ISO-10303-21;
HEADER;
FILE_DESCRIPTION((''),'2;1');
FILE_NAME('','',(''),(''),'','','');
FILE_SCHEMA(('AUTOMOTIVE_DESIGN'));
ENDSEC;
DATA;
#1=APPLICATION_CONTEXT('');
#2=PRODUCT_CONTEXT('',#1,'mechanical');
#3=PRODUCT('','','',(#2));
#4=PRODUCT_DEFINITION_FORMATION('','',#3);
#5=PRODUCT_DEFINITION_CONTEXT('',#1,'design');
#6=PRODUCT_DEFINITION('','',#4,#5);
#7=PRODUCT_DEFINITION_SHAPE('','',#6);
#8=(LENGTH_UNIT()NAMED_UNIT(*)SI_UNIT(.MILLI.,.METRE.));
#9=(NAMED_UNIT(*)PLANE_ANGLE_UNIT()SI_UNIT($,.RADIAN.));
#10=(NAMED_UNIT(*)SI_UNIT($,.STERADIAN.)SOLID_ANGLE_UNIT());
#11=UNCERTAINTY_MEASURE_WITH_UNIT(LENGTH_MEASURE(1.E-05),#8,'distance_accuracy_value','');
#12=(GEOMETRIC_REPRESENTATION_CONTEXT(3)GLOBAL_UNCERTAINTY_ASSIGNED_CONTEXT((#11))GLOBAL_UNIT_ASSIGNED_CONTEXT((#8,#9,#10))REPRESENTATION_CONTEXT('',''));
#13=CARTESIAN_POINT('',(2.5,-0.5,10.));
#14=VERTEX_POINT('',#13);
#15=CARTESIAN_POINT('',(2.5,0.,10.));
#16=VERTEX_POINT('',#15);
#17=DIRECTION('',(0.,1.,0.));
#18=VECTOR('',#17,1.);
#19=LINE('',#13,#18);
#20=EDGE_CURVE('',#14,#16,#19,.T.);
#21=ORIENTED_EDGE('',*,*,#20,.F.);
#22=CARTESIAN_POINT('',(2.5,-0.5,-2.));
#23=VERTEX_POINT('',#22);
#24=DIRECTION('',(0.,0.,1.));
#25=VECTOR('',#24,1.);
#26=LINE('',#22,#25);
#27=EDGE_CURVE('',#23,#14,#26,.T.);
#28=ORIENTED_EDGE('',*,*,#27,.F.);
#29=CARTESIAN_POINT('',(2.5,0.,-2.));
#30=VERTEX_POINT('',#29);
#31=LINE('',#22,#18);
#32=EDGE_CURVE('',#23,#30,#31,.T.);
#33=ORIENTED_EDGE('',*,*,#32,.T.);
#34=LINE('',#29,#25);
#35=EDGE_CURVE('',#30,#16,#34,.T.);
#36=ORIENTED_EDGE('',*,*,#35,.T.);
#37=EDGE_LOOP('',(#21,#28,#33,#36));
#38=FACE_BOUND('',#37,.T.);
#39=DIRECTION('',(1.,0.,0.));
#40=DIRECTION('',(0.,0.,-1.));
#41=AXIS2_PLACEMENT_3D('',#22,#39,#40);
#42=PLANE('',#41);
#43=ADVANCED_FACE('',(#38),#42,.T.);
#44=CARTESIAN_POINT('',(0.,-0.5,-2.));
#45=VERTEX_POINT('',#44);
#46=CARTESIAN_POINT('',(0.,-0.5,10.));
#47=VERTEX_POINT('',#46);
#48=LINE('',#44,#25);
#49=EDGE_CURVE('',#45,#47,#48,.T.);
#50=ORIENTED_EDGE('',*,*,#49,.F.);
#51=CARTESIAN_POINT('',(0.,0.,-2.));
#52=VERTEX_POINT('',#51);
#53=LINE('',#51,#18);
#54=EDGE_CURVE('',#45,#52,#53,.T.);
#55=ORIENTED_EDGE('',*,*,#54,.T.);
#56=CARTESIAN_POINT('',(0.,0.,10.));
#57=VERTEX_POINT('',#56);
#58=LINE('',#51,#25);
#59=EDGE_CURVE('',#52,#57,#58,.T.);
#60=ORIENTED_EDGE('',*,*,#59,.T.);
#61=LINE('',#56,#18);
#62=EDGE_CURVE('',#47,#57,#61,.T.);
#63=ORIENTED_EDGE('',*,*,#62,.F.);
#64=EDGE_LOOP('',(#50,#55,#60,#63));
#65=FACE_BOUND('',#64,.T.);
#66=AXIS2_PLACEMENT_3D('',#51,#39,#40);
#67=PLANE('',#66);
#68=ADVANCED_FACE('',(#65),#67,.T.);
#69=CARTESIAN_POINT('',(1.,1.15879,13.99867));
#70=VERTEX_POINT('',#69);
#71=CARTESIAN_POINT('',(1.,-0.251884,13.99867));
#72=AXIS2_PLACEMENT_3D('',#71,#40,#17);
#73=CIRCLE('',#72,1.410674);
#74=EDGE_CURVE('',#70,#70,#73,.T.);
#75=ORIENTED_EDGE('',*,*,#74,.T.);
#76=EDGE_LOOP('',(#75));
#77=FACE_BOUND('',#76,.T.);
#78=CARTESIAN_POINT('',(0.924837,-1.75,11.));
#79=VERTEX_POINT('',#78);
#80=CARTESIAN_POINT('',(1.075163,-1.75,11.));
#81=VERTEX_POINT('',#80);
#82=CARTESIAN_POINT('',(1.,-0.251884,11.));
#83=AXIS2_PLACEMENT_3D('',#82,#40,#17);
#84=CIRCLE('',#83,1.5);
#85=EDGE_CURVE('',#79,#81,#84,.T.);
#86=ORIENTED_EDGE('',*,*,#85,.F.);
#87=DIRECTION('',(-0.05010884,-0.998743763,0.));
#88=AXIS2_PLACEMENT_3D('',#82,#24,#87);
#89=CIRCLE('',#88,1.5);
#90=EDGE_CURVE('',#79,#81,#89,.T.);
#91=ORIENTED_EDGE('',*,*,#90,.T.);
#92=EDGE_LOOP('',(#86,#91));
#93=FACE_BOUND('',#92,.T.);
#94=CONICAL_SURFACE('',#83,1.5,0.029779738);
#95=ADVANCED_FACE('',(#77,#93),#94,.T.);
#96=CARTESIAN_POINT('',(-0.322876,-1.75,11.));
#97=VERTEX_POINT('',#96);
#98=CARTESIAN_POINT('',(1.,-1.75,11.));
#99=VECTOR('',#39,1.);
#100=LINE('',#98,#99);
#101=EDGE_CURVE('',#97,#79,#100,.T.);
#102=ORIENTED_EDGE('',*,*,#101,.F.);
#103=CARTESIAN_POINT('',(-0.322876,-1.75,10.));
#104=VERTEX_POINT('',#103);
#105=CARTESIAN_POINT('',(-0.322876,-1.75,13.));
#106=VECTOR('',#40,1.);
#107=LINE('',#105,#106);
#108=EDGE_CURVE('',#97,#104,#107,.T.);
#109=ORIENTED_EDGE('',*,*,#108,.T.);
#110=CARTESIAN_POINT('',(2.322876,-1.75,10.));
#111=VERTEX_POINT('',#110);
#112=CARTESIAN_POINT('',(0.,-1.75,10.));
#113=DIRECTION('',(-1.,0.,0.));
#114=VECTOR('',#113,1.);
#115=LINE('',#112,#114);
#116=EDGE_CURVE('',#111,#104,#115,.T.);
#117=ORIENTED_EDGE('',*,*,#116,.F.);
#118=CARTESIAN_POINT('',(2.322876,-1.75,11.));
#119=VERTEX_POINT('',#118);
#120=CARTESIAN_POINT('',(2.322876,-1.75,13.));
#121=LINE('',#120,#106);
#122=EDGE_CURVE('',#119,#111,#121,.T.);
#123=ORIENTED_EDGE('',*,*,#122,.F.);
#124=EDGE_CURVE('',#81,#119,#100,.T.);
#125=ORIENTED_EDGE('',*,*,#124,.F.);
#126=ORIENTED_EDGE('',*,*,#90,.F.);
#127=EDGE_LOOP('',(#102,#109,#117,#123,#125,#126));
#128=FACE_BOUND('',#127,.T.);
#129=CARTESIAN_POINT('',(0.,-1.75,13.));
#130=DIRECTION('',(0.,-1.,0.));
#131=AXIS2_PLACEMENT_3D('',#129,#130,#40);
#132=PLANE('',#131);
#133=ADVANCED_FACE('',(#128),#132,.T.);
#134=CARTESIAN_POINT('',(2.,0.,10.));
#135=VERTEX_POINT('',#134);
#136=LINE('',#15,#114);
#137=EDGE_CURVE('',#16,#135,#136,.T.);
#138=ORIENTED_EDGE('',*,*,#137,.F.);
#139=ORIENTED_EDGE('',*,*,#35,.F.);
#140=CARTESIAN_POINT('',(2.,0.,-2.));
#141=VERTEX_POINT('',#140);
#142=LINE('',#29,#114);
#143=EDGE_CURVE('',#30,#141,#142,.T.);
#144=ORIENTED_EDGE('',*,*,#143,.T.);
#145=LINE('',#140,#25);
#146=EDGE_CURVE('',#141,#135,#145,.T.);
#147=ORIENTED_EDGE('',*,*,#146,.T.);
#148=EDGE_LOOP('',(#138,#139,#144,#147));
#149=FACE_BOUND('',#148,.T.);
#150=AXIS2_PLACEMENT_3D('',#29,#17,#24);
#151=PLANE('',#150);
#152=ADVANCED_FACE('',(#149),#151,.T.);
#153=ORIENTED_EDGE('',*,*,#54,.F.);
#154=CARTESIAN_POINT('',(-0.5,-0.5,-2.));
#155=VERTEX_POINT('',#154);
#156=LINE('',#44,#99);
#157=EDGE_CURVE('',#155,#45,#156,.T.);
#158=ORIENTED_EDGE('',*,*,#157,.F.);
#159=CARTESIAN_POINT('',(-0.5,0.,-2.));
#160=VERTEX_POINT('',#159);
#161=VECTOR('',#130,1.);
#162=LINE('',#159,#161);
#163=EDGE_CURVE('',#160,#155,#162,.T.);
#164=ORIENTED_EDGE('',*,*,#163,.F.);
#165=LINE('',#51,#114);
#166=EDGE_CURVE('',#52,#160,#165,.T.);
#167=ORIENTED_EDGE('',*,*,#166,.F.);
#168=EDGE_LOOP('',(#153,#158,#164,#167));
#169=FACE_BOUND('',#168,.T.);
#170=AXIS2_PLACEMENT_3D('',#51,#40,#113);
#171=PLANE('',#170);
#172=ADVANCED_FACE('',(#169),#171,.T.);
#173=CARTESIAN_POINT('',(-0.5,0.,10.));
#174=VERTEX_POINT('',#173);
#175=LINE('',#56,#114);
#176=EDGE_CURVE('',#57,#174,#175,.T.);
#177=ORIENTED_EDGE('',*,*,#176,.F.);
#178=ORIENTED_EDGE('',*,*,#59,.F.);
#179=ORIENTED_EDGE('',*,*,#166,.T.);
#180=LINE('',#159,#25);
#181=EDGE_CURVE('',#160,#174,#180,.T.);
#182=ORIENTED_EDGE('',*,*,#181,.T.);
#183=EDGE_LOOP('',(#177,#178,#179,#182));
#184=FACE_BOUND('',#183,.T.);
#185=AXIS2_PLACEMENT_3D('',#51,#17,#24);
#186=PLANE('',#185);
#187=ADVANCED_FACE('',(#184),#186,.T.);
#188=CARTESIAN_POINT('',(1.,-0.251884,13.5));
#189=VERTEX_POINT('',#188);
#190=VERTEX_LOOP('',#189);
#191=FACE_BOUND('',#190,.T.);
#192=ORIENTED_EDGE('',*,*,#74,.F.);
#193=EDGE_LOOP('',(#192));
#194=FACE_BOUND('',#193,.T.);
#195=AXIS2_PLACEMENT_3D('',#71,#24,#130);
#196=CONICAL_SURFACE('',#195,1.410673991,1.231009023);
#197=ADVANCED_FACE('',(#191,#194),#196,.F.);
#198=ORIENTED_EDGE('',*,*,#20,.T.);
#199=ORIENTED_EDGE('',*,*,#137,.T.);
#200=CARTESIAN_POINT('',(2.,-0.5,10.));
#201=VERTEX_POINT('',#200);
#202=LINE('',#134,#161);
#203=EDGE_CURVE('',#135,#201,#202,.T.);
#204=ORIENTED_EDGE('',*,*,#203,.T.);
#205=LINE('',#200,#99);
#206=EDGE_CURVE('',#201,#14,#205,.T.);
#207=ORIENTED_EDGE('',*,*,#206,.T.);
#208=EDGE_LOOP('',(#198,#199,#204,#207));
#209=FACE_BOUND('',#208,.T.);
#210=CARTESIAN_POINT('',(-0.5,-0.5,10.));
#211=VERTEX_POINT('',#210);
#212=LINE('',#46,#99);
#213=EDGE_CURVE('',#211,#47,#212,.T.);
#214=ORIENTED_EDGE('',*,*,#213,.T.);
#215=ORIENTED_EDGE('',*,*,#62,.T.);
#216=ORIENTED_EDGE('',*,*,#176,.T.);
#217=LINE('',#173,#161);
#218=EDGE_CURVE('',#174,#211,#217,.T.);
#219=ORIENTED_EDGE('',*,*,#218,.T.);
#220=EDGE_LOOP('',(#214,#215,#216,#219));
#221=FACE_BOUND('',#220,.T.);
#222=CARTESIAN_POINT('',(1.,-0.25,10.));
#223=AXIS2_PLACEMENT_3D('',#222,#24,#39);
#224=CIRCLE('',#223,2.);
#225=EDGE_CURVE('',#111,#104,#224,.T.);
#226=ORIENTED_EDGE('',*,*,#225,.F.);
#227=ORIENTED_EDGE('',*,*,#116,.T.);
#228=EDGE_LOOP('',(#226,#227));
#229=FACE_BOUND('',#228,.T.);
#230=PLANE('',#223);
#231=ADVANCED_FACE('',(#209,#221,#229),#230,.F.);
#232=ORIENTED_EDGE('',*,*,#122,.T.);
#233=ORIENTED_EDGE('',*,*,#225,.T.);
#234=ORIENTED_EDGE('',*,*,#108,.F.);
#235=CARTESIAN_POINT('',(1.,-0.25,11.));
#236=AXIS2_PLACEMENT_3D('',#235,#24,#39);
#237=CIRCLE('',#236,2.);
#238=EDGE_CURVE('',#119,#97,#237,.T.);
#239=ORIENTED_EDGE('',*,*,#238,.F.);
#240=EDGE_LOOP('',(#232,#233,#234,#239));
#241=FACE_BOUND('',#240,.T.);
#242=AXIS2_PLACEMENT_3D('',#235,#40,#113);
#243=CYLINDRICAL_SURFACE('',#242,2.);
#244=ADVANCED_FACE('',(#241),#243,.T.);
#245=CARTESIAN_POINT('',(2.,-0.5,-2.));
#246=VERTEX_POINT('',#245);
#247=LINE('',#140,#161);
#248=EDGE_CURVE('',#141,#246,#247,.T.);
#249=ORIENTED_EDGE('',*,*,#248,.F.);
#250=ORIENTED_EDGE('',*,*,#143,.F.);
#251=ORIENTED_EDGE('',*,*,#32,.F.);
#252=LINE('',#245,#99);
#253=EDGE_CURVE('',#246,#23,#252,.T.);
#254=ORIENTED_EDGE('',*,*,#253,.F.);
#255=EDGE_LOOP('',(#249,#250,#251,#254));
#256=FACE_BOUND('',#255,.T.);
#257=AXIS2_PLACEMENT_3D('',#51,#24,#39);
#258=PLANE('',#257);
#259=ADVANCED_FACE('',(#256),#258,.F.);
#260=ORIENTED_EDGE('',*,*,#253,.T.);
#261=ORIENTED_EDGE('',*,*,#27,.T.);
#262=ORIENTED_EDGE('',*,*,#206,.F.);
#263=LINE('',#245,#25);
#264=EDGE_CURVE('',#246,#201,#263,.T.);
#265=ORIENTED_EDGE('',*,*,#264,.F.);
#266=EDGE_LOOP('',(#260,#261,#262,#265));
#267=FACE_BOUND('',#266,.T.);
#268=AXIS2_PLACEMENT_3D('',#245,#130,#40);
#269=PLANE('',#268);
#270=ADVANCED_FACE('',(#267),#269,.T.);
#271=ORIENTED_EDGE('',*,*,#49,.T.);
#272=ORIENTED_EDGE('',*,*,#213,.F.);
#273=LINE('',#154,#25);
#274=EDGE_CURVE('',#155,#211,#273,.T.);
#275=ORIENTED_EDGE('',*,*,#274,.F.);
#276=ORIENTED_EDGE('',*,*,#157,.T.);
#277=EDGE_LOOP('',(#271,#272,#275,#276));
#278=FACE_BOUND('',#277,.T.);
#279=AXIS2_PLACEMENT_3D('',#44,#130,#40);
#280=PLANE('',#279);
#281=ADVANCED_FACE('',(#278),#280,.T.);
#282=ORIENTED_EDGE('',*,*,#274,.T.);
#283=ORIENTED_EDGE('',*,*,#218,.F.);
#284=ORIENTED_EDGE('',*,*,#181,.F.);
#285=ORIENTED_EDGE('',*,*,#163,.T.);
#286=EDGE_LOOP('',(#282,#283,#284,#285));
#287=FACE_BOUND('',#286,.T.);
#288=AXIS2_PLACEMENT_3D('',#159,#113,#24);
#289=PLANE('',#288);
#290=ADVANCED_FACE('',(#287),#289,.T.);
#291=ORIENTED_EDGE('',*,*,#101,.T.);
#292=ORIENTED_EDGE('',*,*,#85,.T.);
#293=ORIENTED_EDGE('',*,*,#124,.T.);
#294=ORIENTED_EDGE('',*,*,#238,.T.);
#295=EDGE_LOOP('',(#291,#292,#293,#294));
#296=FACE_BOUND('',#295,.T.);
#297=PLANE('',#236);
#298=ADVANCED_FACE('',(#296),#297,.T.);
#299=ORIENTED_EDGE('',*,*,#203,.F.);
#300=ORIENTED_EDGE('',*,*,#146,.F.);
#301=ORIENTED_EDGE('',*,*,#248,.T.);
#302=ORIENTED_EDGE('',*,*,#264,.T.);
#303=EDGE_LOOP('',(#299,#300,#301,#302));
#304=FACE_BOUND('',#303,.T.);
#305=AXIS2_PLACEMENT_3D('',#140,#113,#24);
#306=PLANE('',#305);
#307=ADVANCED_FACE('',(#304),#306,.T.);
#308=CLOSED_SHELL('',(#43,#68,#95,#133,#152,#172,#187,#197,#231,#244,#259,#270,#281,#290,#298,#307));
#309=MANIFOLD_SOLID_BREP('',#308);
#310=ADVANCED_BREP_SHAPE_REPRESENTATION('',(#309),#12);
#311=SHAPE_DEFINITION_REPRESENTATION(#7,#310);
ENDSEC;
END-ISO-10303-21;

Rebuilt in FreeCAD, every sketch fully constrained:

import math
import FreeCAD as App
import Part
import Sketcher
Q = App.Units.Quantity


def add_polygon(sketch, points):
    """Adds a closed chain of lines whose ends are joined by coincident constraints."""
    first, n = sketch.GeometryCount, len(points)
    for a, b in zip(points, points[1:] + points[:1]):
        sketch.addGeometry(Part.LineSegment(App.Vector(*a, 0), App.Vector(*b, 0)), False)
    for i in range(n):
        sketch.addConstraint(Sketcher.Constraint("Coincident", first + i, 2, first + (i + 1) % n, 1))

doc = App.newDocument("Part")
params = doc.addObject("Spreadsheet::Sheet", "Params")
for row, (alias, value) in enumerate([
    ("sketch1_width", "0.5 mm"),
    ("pad1_length", "10 mm"),
    ("pad1_length2", "2 mm"),
    ("sketch2_width", "0.5 mm"),
    ("pad2_length", "10 mm"),
    ("pad2_length2", "2 mm"),
    ("sketch3_diameter", "4 mm"),
    ("pad3_length", "1 mm"),
    ("sketch4_radius", "2 mm"),
    ("pocket1_length", "3 mm"),
    ("sketch5_length", "3 mm"),
    ("sketch5_width", "1.5 mm"),
    ("sketch5_height", "2.5 mm"),
    ("revolution_angle", "360 deg"),
], start=1):
    params.set(f"A{row}", alias)
    params.set(f"B{row}", "=" + value)
    params.setAlias(f"B{row}", alias)

body = doc.addObject("PartDesign::Body", "Body")

sketch1 = body.newObject("Sketcher::SketchObject", "Sketch")
sketch1.AttachmentSupport = (doc.getObject("XY_Plane"), [""])
sketch1.MapMode = "FlatFace"
add_polygon(sketch1, [(-0.5, 0), (-0.5, -0.5), (0, -0.5), (0, 0)])
sketch1.addConstraint(Sketcher.Constraint("Vertical", 0))
sketch1.addConstraint(Sketcher.Constraint("Horizontal", 1))
sketch1.addConstraint(Sketcher.Constraint("Vertical", 2))
sketch1.addConstraint(Sketcher.Constraint("Horizontal", 3))
sketch1.addConstraint(Sketcher.Constraint("Coincident", 2, 2, -1, 1))
sketch1.addConstraint(Sketcher.Constraint("Equal", 3, 0))
sketch1.addConstraint(Sketcher.Constraint("DistanceX", 1, 1, 1, 2, Q("0.5 mm")))
sketch1.setExpression("Constraints[10]", "Params.sketch1_width")
pad1 = body.newObject("PartDesign::Pad", "Pad")
pad1.Profile = sketch1
pad1.Type = "TwoLengths"
pad1.setExpression("Length", "Params.pad1_length")
pad1.setExpression("Length2", "Params.pad1_length2")
body2 = doc.addObject("PartDesign::Body", "Body001")

sketch2 = body2.newObject("Sketcher::SketchObject", "Sketch001")
sketch2.AttachmentSupport = (doc.getObject("XY_Plane001"), [""])
sketch2.MapMode = "FlatFace"
add_polygon(sketch2, [(2, 0), (2, -0.5), (2.5, -0.5), (2.5, 0)])
sketch2.addConstraint(Sketcher.Constraint("Vertical", 0))
sketch2.addConstraint(Sketcher.Constraint("Horizontal", 1))
sketch2.addConstraint(Sketcher.Constraint("Vertical", 2))
sketch2.addConstraint(Sketcher.Constraint("Horizontal", 3))
sketch2.addConstraint(Sketcher.Constraint("PointOnObject", 2, 2, -1))
sketch2.addConstraint(Sketcher.Constraint("Equal", 3, 0))
sketch2.addConstraint(Sketcher.Constraint("DistanceX", 1, 1, 1, 2, Q("0.5 mm")))
sketch2.addConstraint(Sketcher.Constraint("DistanceX", -1, 1, 0, 2, Q("2 mm")))
sketch2.setExpression("Constraints[10]", "Params.sketch2_width")
pad2 = body2.newObject("PartDesign::Pad", "Pad001")
pad2.Profile = sketch2
pad2.Type = "TwoLengths"
pad2.setExpression("Length", "Params.pad2_length")
pad2.setExpression("Length2", "Params.pad2_length2")
body.AllowCompound = True
doc.recompute()

boolean = body.newObject("PartDesign::Boolean", "Boolean")
boolean.Type = "Fuse"
boolean.addObjects([body2])

sketch3 = body.newObject("Sketcher::SketchObject", "Sketch002")
sketch3.AttachmentSupport = (doc.getObject("XY_Plane"), [""])
sketch3.MapMode = "FlatFace"
sketch3.AttachmentOffset = App.Placement(App.Vector(0, 0, 10), App.Rotation())
sketch3.addGeometry(Part.Circle(App.Vector(1, -0.2, 0), App.Vector(0, 0, 1), 2), False)
sketch3.addConstraint(Sketcher.Constraint("Diameter", 0, Q("4 mm")))
sketch3.addConstraint(Sketcher.Constraint("DistanceX", -1, 1, 0, 3, Q("1 mm")))
sketch3.addConstraint(Sketcher.Constraint("DistanceY", 0, 3, -1, 1, Q("0.25 mm")))
sketch3.setExpression("Constraints[0]", "Params.sketch3_diameter")
pad3 = body.newObject("PartDesign::Pad", "Pad002")
pad3.Profile = sketch3
pad3.setExpression("Length", "Params.pad3_length")

sketch4 = body.newObject("Sketcher::SketchObject", "Sketch003")
sketch4.AttachmentSupport = (doc.getObject("XY_Plane"), [""])
sketch4.MapMode = "FlatFace"
sketch4.AttachmentOffset = App.Placement(App.Vector(0, 0, 10), App.Rotation())
sketch4.addGeometry(Part.LineSegment(App.Vector(-0.3, -1.8, 0), App.Vector(2.3, -1.8, 0)), False)
sketch4.addGeometry(Part.ArcOfCircle(Part.Circle(App.Vector(1, -0.2, 0), App.Vector(0, 0, 1), 2), math.radians(-131), math.radians(-49)), False)
sketch4.addConstraint(Sketcher.Constraint("Coincident", 0, 1, 1, 1))
sketch4.addConstraint(Sketcher.Constraint("Coincident", 1, 2, 0, 2))
sketch4.addConstraint(Sketcher.Constraint("Horizontal", 0))
sketch4.addConstraint(Sketcher.Constraint("Radius", 1, Q("2 mm")))
sketch4.addConstraint(Sketcher.Constraint("DistanceX", -1, 1, 1, 3, Q("1 mm")))
sketch4.addConstraint(Sketcher.Constraint("DistanceY", 0, 1, 1, 3, Q("1.5 mm")))
sketch4.addConstraint(Sketcher.Constraint("DistanceY", 1, 3, -1, 1, Q("0.25 mm")))
sketch4.setExpression("Constraints[3]", "Params.sketch4_radius")
pocket1 = body.newObject("PartDesign::Pocket", "Pocket")
pocket1.Profile = sketch4
pocket1.setExpression("Length", "Params.pocket1_length")
pocket1.Reversed = True

sketch5 = body.newObject("Sketcher::SketchObject", "Sketch004")
sketch5.AttachmentSupport = (doc.getObject("YZ_Plane"), [""])
sketch5.MapMode = "FlatFace"
sketch5.AttachmentOffset = App.Placement(App.Vector(0, 0, 1), App.Rotation())
add_polygon(sketch5, [(-0.3, 13.5), (-1.7, 14), (-1.8, 11), (-0.3, 11)])
sketch5.addGeometry(Part.LineSegment(App.Vector(-0.3, 11, 0), App.Vector(-0.3, 14, 0)), True)
sketch5.addConstraint(Sketcher.Constraint("Horizontal", 2))
sketch5.addConstraint(Sketcher.Constraint("Vertical", 3))
sketch5.addConstraint(Sketcher.Constraint("Vertical", 4))
sketch5.addConstraint(Sketcher.Constraint("Coincident", 4, 1, 2, 2))
sketch5.addConstraint(Sketcher.Constraint("Horizontal", 0, 2, 4, 2))
sketch5.addConstraint(Sketcher.Constraint("Distance", 1, Q("3 mm")))
sketch5.addConstraint(Sketcher.Constraint("DistanceX", 2, 1, 2, 2, Q("1.5 mm")))
sketch5.addConstraint(Sketcher.Constraint("DistanceY", 3, 1, 3, 2, Q("2.5 mm")))
sketch5.addConstraint(Sketcher.Constraint("DistanceY", -1, 1, 1, 2, Q("11 mm")))
sketch5.addConstraint(Sketcher.Constraint("DistanceY", 4, 1, 4, 2, Q("2.99867 mm")))
sketch5.addConstraint(Sketcher.Constraint("DistanceX", 0, 2, -1, 1, Q("1.662558 mm")))
sketch5.setExpression("Constraints[9]", "Params.sketch5_length")
sketch5.setExpression("Constraints[10]", "Params.sketch5_width")
sketch5.setExpression("Constraints[11]", "Params.sketch5_height")
revolution = body.newObject("PartDesign::Revolution", "Revolution")
revolution.Profile = sketch5
revolution.ReferenceAxis = (sketch5, ["Axis0"])
revolution.setExpression("Angle", "Params.revolution_angle")

doc.recompute()
